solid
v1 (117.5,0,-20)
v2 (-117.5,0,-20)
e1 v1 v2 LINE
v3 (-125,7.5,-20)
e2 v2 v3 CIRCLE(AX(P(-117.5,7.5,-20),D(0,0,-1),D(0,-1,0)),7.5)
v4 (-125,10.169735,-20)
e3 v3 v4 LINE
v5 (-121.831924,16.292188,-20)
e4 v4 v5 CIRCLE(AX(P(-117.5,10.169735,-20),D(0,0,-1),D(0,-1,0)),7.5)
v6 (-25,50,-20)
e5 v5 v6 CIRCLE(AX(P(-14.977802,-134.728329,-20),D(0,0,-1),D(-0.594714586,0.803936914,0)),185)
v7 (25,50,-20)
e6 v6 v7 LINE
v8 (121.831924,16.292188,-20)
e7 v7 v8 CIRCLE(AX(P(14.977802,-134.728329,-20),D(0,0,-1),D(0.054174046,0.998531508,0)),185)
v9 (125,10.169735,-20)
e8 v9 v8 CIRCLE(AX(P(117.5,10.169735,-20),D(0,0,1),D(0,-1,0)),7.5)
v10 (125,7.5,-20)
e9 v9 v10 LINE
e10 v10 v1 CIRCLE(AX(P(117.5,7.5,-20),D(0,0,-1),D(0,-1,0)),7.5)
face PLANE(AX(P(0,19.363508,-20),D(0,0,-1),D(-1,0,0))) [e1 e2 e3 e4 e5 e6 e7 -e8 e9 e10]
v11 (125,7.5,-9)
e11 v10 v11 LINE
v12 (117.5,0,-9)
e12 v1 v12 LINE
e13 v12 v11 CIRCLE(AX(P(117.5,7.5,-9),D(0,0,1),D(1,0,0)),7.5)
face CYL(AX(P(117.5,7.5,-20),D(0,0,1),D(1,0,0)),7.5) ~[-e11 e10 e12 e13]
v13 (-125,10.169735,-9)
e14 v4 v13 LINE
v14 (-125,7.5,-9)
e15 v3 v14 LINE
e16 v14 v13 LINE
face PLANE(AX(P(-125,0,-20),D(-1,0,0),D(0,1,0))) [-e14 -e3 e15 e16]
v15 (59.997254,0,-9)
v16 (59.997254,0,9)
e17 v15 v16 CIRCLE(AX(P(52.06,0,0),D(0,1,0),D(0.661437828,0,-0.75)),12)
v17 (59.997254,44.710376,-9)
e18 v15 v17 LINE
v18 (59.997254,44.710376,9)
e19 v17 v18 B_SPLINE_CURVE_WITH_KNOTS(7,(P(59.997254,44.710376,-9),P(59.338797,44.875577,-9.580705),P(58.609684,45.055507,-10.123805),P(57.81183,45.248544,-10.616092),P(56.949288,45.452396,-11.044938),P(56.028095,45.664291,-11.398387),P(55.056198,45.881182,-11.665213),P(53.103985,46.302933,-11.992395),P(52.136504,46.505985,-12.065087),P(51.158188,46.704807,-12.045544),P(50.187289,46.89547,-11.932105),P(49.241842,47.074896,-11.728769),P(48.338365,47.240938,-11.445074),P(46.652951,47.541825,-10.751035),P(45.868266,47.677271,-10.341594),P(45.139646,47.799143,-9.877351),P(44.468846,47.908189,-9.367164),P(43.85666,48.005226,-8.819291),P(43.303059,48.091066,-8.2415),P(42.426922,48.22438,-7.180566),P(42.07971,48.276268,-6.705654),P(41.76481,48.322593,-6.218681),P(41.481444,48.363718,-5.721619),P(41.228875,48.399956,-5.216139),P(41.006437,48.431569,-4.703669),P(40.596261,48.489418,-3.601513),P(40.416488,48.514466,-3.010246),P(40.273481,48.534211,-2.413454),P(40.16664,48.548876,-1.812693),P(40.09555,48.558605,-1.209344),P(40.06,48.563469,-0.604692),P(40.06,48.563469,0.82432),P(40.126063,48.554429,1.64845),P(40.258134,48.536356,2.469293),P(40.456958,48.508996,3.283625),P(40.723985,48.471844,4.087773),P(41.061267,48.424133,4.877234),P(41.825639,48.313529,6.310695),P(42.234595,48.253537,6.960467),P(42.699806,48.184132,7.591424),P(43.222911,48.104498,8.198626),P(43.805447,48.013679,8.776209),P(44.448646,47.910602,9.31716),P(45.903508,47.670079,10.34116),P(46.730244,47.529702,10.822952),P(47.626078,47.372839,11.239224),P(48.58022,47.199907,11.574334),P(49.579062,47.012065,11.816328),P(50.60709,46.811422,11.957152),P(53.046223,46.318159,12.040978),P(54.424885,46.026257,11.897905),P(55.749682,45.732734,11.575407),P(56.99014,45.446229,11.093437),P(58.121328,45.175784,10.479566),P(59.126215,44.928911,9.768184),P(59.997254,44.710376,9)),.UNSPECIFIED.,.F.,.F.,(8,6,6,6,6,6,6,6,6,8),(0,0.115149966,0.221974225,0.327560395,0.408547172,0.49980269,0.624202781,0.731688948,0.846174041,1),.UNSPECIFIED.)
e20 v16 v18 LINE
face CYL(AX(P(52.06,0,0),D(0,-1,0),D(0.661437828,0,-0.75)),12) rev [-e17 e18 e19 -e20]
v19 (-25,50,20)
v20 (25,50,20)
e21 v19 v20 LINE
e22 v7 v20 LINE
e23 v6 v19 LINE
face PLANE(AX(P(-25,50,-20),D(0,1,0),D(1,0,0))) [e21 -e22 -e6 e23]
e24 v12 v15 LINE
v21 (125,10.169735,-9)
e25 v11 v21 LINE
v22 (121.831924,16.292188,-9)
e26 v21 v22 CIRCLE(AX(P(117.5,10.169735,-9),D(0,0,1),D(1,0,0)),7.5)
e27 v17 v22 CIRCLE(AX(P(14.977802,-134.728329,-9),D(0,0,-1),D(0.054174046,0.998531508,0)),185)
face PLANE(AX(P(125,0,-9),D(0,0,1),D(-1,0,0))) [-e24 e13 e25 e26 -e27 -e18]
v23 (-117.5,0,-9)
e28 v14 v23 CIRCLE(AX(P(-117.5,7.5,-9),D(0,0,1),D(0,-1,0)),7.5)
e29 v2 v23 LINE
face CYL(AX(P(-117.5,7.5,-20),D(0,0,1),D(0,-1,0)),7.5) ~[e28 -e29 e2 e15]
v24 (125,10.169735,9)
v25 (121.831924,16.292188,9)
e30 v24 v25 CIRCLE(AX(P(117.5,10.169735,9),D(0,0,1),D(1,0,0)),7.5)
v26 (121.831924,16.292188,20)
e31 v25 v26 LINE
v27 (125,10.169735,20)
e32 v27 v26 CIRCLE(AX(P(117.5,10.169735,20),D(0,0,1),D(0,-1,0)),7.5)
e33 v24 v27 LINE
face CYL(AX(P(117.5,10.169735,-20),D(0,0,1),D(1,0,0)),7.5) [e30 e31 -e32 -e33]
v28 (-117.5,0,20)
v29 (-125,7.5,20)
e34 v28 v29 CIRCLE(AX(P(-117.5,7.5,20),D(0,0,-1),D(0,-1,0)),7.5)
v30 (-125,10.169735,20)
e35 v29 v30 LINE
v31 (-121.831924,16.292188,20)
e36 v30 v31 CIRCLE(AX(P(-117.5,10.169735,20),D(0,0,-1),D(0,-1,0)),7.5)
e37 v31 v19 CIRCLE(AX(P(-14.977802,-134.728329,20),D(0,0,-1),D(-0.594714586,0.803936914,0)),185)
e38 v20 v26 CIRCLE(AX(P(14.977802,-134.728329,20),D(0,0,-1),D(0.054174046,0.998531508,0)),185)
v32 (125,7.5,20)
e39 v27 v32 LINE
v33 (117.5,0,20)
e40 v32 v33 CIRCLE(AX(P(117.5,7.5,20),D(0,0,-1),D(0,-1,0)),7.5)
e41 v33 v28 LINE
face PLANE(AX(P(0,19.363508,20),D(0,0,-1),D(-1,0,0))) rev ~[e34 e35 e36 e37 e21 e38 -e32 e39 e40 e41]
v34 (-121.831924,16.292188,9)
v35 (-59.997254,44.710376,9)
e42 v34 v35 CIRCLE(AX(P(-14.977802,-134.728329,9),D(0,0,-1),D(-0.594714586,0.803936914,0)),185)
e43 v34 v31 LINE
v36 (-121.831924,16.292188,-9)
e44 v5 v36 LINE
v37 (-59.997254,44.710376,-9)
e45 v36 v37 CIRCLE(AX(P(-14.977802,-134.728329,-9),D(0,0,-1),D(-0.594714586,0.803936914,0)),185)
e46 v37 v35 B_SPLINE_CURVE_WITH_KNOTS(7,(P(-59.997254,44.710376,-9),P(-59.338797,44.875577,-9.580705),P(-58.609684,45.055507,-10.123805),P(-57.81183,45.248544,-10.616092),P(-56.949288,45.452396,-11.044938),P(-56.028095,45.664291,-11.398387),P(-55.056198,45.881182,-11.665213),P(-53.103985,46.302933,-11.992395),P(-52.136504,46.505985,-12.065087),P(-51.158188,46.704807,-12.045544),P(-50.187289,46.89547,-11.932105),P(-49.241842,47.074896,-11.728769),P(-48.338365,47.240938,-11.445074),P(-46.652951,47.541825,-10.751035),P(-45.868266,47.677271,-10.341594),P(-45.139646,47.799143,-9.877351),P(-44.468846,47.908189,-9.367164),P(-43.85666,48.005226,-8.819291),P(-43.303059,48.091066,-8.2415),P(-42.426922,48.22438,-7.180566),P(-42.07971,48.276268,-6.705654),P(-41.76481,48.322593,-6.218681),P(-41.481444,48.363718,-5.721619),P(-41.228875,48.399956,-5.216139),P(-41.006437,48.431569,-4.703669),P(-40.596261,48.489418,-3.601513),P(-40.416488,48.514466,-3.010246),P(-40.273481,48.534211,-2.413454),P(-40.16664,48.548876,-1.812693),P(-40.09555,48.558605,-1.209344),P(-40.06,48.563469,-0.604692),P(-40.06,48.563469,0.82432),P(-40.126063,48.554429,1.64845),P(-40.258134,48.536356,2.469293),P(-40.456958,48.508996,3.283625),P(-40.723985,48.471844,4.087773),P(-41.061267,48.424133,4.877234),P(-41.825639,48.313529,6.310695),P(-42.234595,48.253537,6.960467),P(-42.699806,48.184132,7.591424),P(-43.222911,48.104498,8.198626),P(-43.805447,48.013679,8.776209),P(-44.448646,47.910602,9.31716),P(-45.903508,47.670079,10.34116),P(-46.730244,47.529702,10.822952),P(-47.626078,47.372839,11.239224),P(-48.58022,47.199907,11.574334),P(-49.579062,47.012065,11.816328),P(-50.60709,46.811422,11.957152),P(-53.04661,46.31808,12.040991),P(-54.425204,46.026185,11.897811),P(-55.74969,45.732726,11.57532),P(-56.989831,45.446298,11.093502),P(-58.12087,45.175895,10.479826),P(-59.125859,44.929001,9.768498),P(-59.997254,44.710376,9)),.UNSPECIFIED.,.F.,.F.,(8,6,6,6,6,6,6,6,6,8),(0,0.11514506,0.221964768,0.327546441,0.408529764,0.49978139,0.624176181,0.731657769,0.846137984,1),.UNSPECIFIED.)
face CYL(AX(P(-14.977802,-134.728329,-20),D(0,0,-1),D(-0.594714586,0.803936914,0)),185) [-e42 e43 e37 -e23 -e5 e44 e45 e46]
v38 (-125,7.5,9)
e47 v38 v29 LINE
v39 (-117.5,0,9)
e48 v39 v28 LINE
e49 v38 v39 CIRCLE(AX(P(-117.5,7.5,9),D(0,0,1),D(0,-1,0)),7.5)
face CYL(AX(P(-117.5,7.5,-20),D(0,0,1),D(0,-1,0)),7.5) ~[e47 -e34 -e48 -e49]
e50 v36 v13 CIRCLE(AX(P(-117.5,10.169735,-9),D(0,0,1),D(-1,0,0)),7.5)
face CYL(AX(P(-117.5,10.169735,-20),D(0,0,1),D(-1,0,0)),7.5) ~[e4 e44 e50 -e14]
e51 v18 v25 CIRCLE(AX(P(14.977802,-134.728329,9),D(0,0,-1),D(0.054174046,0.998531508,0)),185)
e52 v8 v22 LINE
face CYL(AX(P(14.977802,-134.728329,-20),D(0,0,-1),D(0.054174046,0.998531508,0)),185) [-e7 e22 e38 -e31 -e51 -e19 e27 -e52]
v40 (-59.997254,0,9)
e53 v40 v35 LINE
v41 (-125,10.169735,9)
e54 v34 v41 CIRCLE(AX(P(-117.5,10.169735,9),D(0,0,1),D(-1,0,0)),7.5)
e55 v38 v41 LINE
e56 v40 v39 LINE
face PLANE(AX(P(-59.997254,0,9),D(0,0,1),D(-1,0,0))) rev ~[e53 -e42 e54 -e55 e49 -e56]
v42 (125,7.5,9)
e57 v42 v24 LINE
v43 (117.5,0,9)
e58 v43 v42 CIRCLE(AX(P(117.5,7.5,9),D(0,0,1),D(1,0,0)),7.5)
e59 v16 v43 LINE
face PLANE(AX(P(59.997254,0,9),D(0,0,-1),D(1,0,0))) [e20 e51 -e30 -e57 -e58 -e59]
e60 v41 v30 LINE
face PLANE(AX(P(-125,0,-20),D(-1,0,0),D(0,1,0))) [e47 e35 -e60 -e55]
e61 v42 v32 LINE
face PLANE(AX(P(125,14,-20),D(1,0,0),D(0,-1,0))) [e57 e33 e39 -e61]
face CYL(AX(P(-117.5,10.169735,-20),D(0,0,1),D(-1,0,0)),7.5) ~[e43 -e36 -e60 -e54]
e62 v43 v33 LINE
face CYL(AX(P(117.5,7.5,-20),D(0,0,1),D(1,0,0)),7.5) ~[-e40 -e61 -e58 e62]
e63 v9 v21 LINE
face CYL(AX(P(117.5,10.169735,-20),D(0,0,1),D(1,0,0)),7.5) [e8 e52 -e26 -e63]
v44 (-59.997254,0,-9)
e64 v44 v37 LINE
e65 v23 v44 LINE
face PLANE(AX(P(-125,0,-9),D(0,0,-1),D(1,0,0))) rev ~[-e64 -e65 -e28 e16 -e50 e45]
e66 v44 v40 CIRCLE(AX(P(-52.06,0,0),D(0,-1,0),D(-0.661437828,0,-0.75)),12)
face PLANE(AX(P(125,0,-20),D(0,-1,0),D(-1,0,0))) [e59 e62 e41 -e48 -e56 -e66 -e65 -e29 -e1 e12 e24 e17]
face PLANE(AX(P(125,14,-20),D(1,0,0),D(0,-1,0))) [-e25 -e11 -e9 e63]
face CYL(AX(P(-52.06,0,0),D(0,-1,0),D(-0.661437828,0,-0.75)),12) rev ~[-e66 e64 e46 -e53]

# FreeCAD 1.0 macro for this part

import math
import FreeCAD as App
import Part
import Sketcher
from FreeCAD import Vector
Q = App.Units.Quantity


def edges_at(feature, points):
    """Names of the edges that pass closest to the given points."""
    edges = feature.Shape.Edges
    near = lambda p: min(range(len(edges)), key=lambda i: edges[i].distToShape(Part.Vertex(*p))[0])
    return sorted({f"Edge{near(p) + 1}" for p in points})

doc = App.newDocument("Part")
body = doc.addObject("PartDesign::Body", "Body")

sketch1 = body.newObject("Sketcher::SketchObject", "Sketch")
sketch1.AttachmentSupport = (doc.getObject("XY_Plane"), [""])
sketch1.MapMode = "FlatFace"
sketch1.addGeometry([
    Part.LineSegment(Vector(-125, 0, 0), Vector(125, 0, 0)),
    Part.LineSegment(Vector(125, 0, 0), Vector(125, 14, 0)),
    Part.ArcOfCircle(Part.Circle(Vector(14.977802, -134.728329, 0), Vector(0, 0, 1), 185), math.radians(53.507712), math.radians(86.894536)),
    Part.LineSegment(Vector(25, 50, 0), Vector(-25, 50, 0)),
    Part.ArcOfCircle(Part.Circle(Vector(-14.977802, -134.728329, 0), Vector(0, 0, 1), 185), math.radians(93.105464), math.radians(126.492288)),
    Part.LineSegment(Vector(-125, 14, 0), Vector(-125, 0, 0)),
], False)
sketch1.addConstraint([
    Sketcher.Constraint("Coincident", 0, 2, 1, 1),
    Sketcher.Constraint("Coincident", 1, 2, 2, 1),
    Sketcher.Constraint("Coincident", 2, 2, 3, 1),
    Sketcher.Constraint("Coincident", 3, 2, 4, 1),
    Sketcher.Constraint("Coincident", 4, 2, 5, 1),
    Sketcher.Constraint("Coincident", 5, 2, 0, 1),
    Sketcher.Constraint("Horizontal", 0),
    Sketcher.Constraint("Vertical", 1),
    Sketcher.Constraint("Horizontal", 3),
    Sketcher.Constraint("Vertical", 5),
    Sketcher.Constraint("Equal", 2, 4),
    Sketcher.Constraint("Symmetric", 0, 2, 5, 2, -1, 1),
    Sketcher.Constraint("Symmetric", 2, 3, 4, 3, -2),
    Sketcher.Constraint("Radius", 2, Q("185 mm")),
    Sketcher.Constraint("DistanceX", 0, 1, 0, 2, Q("250 mm")),
    Sketcher.Constraint("DistanceX", 3, 2, 3, 1, Q("50 mm")),
    Sketcher.Constraint("DistanceY", 1, 1, 1, 2, Q("14 mm")),
    Sketcher.Constraint("DistanceY", -1, 1, 2, 2, Q("50 mm")),
])
pad1 = body.newObject("PartDesign::Pad", "Pad")
pad1.Profile = sketch1
pad1.Type = "TwoLengths"
pad1.Length = 20
pad1.Length2 = 20
doc.recompute()

fillet = body.newObject("PartDesign::Fillet", "Fillet")
fillet.Base = (pad1, edges_at(pad1, [(-125, 14, 0)]))
fillet.Radius = 7.5
doc.recompute()

fillet2 = body.newObject("PartDesign::Fillet", "Fillet001")
fillet2.Base = (fillet, edges_at(fillet, [(125, 14, 0)]))
fillet2.Radius = 7.5
doc.recompute()

fillet3 = body.newObject("PartDesign::Fillet", "Fillet002")
fillet3.Base = (fillet2, edges_at(fillet2, [(125, 0, 0)]))
fillet3.Radius = 7.5
doc.recompute()

fillet4 = body.newObject("PartDesign::Fillet", "Fillet003")
fillet4.Base = (fillet3, edges_at(fillet3, [(-125, 0, 0)]))
fillet4.Radius = 7.5

sketch2 = body.newObject("Sketcher::SketchObject", "Sketch001")
sketch2.AttachmentSupport = (doc.getObject("XZ_Plane"), [""])
sketch2.MapMode = "FlatFace"
sketch2.addGeometry([
    Part.ArcOfCircle(Part.Circle(Vector(-52.06, 0, 0), Vector(0, 0, 1), 12), math.radians(-131.409622), math.radians(131.409622)),
    Part.LineSegment(Vector(-59.997254, -9, 0), Vector(-125, -9, 0)),
    Part.LineSegment(Vector(-125, -9, 0), Vector(-125, 9, 0)),
    Part.LineSegment(Vector(-125, 9, 0), Vector(-59.997254, 9, 0)),
    Part.LineSegment(Vector(125, -9, 0), Vector(59.997254, -9, 0)),
    Part.ArcOfCircle(Part.Circle(Vector(52.06, 0, 0), Vector(0, 0, 1), 12), math.radians(48.590378), math.radians(311.409622)),
    Part.LineSegment(Vector(59.997254, 9, 0), Vector(125, 9, 0)),
    Part.LineSegment(Vector(125, 9, 0), Vector(125, -9, 0)),
], False)
sketch2.addConstraint([
    Sketcher.Constraint("Coincident", 0, 1, 1, 1),
    Sketcher.Constraint("Coincident", 1, 2, 2, 1),
    Sketcher.Constraint("Coincident", 2, 2, 3, 1),
    Sketcher.Constraint("Coincident", 3, 2, 0, 2),
    Sketcher.Constraint("Coincident", 4, 2, 5, 2),
    Sketcher.Constraint("Coincident", 5, 1, 6, 1),
    Sketcher.Constraint("Coincident", 6, 2, 7, 1),
    Sketcher.Constraint("Coincident", 7, 2, 4, 1),
    Sketcher.Constraint("Horizontal", 1),
    Sketcher.Constraint("Vertical", 2),
    Sketcher.Constraint("Horizontal", 3),
    Sketcher.Constraint("Horizontal", 4),
    Sketcher.Constraint("Horizontal", 6),
    Sketcher.Constraint("Vertical", 7),
    Sketcher.Constraint("Equal", 0, 5),
    Sketcher.Constraint("Symmetric", 0, 3, 5, 3, -1, 1),
    Sketcher.Constraint("Symmetric", 1, 2, 6, 2, -1, 1),
    Sketcher.Constraint("Symmetric", 0, 1, 4, 2, -2),
    Sketcher.Constraint("Horizontal", 3, 2, 5, 1),
    Sketcher.Constraint("Radius", 0, Q("12 mm")),
    Sketcher.Constraint("DistanceY", 2, 1, 2, 2, Q("18 mm")),
    Sketcher.Constraint("DistanceX", 1, 2, -1, 1, Q("125 mm")),
    Sketcher.Constraint("DistanceX", 0, 3, -1, 1, Q("52.06 mm")),
])
pocket1 = body.newObject("PartDesign::Pocket", "Pocket")
pocket1.Profile = sketch2
pocket1.Type = "ThroughAll"

doc.recompute()
